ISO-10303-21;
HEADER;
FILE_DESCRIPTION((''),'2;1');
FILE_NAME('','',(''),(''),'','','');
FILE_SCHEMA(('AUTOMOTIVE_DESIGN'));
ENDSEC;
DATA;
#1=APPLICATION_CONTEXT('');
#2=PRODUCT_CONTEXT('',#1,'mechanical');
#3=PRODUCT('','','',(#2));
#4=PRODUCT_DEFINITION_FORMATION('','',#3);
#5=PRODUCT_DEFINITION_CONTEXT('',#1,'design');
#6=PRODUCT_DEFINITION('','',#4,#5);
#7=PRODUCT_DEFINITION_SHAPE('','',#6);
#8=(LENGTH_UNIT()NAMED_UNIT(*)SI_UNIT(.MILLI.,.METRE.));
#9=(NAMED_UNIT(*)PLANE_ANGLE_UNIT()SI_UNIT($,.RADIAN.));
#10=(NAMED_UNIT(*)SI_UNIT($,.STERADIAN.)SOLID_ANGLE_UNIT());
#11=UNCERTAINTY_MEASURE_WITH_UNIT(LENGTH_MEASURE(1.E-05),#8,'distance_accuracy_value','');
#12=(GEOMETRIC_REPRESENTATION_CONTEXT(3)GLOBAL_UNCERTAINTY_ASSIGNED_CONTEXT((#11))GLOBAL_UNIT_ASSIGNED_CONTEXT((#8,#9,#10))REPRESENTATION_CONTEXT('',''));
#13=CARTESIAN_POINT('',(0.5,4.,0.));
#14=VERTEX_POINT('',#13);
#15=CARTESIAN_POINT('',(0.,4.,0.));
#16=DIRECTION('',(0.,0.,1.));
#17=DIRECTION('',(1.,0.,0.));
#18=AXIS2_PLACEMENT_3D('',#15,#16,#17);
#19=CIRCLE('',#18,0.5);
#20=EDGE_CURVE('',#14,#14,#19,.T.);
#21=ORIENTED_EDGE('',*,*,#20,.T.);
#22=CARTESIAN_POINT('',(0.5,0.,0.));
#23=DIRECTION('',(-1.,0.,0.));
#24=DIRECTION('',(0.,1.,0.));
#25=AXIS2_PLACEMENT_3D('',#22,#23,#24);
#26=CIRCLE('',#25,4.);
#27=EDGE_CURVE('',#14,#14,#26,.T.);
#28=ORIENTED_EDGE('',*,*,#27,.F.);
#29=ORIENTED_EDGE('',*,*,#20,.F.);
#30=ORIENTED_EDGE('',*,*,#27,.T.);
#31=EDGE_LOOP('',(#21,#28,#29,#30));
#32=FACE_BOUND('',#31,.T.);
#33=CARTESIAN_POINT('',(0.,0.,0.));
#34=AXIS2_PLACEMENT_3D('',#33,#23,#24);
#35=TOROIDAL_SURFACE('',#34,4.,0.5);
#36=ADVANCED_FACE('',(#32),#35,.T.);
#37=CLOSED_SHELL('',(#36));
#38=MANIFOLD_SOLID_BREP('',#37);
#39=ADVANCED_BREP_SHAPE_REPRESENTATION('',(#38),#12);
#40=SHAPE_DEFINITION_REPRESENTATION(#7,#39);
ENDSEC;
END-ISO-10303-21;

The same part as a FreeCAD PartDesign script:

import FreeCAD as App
import Part
import Sketcher

V = App.Vector

doc = App.newDocument("Part")
params = doc.addObject("Spreadsheet::Sheet", "Params")
for row, (alias, value) in enumerate([
    ("sketch1_diameter", "1 mm"),
    ("revolution_angle", "360 deg"),
], start=1):
    params.set(f"A{row}", alias)
    params.set(f"B{row}", "=" + value)
    params.setAlias(f"B{row}", alias)

body = doc.addObject("PartDesign::Body", "Body")

# Sketch on XY plane
sketch1 = body.newObject("Sketcher::SketchObject", "Sketch")
sketch1.AttachmentSupport = (doc.getObject("XY_Plane"), [""])
sketch1.MapMode = "FlatFace"
sketch1.addGeometry(Part.Circle(V(0, 4, 0), V(0, 0, 1), 0.5), False)
sketch1.addConstraint([
    Sketcher.Constraint("PointOnObject", 0, 3, -2),
    Sketcher.Constraint("Diameter", 0, 1.0),
    Sketcher.Constraint("DistanceY", -1, 1, 0, 3, 4.0),
])
sketch1.setExpression("Constraints[1]", "Params.sketch1_diameter")
revolution = body.newObject("PartDesign::Revolution", "Revolution")
revolution.Profile = sketch1
revolution.ReferenceAxis = (sketch1, ["H_Axis"])
revolution.setExpression("Angle", "Params.revolution_angle")

doc.recompute()
